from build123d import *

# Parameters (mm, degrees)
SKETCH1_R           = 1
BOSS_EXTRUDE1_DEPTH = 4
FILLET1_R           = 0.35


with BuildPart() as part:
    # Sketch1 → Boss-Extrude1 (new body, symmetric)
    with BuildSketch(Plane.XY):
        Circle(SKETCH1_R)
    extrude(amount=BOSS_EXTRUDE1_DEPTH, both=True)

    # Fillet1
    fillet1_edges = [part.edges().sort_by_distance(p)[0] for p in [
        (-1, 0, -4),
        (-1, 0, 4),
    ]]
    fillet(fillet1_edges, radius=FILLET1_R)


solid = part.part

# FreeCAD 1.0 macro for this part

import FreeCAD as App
import Part
import Sketcher


def edges_at(feature, points):
    """Names of the edges that pass closest to the given points."""
    edges = feature.Shape.Edges
    near = lambda p: min(range(len(edges)), key=lambda i: edges[i].distToShape(Part.Vertex(*p))[0])
    return sorted({f"Edge{near(p) + 1}" for p in points})

doc = App.newDocument("Part")
body = doc.addObject("PartDesign::Body", "Body")

sketch1 = body.newObject("Sketcher::SketchObject", "Sketch")
sketch1.AttachmentSupport = (doc.getObject("XY_Plane"), [""])
sketch1.MapMode = "FlatFace"
sketch1.addGeometry(Part.Circle(App.Vector(0, 0, 0), App.Vector(0, 0, 1), 1), False)
sketch1.addConstraint(Sketcher.Constraint("Coincident", 0, 3, -1, 1))
sketch1.addConstraint(Sketcher.Constraint("Diameter", 0, 2.0))
pad1 = body.newObject("PartDesign::Pad", "Pad")
pad1.Profile = sketch1
pad1.Length = 8
pad1.Midplane = True
doc.recompute()

fillet = body.newObject("PartDesign::Fillet", "Fillet")
fillet.Base = (pad1, edges_at(pad1, [(-1, 0, -4), (-1, 0, 4)]))
fillet.Radius = 0.35

doc.recompute()
